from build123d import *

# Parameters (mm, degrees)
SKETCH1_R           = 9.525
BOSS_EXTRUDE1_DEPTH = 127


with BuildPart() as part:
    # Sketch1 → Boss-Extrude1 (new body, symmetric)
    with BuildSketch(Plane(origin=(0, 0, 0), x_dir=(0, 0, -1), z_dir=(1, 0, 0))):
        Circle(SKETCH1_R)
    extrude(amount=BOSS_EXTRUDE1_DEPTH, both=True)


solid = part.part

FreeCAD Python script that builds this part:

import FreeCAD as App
import Part
import Sketcher
Q = App.Units.Quantity

doc = App.newDocument("Part")
body = doc.addObject("PartDesign::Body", "Body")

# Sketch on YZ plane
sketch1 = doc.addObject("Sketcher::SketchObject", "Sketch")
body.addObject(sketch1)
sketch1.AttachmentSupport = (doc.YZ_Plane, [""])
sketch1.MapMode = "FlatFace"
sketch1.addGeometry(Part.Circle(App.Vector(0, 0, 0), App.Vector(0, 0, 1), 10), False)
sketch1.addConstraint(Sketcher.Constraint("Coincident", 0, 3, -1, 1))
sketch1.addConstraint(Sketcher.Constraint("Diameter", 0, Q("0.75 in")))
pad1 = doc.addObject("PartDesign::Pad", "Pad")
body.addObject(pad1)
pad1.Profile = sketch1
pad1.Length = Q("10 in")
pad1.Midplane = True

doc.recompute()
